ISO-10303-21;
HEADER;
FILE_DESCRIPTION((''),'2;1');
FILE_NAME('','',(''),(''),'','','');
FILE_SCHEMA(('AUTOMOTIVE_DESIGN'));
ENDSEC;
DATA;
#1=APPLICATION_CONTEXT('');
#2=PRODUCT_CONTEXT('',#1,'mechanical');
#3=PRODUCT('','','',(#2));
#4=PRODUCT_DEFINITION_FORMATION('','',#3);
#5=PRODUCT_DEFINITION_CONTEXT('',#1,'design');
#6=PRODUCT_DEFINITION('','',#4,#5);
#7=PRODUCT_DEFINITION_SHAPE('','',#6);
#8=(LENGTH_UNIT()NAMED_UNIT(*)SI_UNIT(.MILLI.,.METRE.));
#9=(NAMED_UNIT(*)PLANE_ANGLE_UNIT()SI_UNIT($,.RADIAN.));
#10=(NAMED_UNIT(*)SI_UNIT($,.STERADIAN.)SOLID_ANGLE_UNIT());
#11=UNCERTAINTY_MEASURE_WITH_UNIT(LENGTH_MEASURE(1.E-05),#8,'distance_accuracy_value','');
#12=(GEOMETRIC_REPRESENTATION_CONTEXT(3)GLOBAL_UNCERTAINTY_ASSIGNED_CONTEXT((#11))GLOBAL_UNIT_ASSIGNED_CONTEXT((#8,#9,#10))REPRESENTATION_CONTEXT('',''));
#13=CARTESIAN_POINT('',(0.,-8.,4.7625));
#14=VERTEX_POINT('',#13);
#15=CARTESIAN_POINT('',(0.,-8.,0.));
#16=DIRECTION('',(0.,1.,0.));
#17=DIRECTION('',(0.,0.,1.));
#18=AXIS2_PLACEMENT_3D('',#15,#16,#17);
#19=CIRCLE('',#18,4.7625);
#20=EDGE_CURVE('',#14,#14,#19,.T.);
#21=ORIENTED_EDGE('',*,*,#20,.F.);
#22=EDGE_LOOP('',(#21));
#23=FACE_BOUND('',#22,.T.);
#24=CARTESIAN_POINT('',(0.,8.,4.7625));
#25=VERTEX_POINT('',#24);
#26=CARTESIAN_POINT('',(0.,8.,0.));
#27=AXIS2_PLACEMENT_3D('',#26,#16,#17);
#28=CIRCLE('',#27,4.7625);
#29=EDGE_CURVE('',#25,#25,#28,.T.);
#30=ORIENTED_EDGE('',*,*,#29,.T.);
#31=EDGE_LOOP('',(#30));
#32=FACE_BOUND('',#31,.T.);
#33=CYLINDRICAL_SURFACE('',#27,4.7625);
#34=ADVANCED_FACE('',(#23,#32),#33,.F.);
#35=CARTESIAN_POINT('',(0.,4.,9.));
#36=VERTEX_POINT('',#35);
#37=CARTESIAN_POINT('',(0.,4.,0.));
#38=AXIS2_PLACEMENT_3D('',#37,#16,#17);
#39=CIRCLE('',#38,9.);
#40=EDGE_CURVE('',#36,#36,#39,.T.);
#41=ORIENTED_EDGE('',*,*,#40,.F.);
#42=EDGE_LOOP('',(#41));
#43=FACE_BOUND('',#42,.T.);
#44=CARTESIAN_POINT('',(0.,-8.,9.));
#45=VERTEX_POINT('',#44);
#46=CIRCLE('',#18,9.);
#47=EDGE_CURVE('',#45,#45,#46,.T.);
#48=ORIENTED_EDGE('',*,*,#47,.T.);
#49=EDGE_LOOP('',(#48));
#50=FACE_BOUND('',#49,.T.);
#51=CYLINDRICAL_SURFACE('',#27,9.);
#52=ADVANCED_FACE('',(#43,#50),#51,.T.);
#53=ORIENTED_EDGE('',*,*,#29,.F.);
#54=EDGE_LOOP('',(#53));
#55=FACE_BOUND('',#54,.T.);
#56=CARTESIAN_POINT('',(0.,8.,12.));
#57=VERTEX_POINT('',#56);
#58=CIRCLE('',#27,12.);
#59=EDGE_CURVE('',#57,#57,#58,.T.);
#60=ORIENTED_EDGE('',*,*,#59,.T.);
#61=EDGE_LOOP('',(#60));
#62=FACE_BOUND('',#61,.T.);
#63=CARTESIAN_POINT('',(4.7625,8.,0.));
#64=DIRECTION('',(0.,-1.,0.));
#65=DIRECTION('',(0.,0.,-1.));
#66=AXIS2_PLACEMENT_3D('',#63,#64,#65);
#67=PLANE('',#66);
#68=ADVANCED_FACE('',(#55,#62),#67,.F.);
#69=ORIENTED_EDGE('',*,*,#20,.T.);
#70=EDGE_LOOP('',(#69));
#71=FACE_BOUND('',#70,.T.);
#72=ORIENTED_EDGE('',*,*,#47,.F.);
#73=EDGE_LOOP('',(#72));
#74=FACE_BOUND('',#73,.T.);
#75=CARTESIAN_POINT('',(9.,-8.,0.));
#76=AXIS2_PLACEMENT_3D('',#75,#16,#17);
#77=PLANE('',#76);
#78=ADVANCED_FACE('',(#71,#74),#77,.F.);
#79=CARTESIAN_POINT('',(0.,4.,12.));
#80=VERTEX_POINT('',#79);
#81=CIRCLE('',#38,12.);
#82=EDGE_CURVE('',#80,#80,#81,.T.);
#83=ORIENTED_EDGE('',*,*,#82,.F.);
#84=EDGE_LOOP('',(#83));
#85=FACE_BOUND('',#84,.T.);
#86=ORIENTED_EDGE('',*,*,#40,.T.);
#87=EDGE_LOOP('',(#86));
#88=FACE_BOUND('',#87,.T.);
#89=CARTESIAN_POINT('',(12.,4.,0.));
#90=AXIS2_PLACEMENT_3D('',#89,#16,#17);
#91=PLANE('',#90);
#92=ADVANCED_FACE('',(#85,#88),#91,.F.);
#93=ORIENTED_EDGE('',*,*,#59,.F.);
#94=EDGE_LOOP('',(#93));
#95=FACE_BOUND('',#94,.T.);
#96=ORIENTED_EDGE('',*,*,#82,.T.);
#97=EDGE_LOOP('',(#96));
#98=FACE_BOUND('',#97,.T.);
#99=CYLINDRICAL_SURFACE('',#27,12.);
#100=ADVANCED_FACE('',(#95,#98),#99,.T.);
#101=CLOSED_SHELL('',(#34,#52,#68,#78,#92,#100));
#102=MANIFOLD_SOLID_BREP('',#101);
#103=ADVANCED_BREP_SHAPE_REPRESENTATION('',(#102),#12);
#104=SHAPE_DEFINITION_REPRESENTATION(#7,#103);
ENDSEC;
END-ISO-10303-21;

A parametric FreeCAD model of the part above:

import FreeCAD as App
import Part
import Sketcher
from FreeCAD import Vector
Q = App.Units.Quantity


def add_polygon(sketch, points):
    """Adds a closed chain of lines whose ends are joined by coincident constraints."""
    first, n = sketch.GeometryCount, len(points)
    for a, b in zip(points, points[1:] + points[:1]):
        sketch.addGeometry(Part.LineSegment(App.Vector(*a, 0), App.Vector(*b, 0)), False)
    for i in range(n):
        sketch.addConstraint(Sketcher.Constraint("Coincident", first + i, 2, first + (i + 1) % n, 1))

doc = App.newDocument("Part")
body = doc.addObject("PartDesign::Body", "Body")

# Sketch on XY plane
sketch1 = body.newObject("Sketcher::SketchObject", "Sketch")
sketch1.AttachmentSupport = (doc.getObject("XY_Plane"), [""])
sketch1.MapMode = "FlatFace"
add_polygon(sketch1, [(12, 8), (4.8, 8), (4.8, -8), (9, -8), (9, 4), (12, 4)])  # lines 0-5
sketch1.addConstraint([
    Sketcher.Constraint("Horizontal", 0),
    Sketcher.Constraint("Vertical", 1),
    Sketcher.Constraint("Horizontal", 2),
    Sketcher.Constraint("Vertical", 3),
    Sketcher.Constraint("Horizontal", 4),
    Sketcher.Constraint("Vertical", 5),
    Sketcher.Constraint("DistanceX", 4, 1, 4, 2, Q("3 mm")),
    Sketcher.Constraint("DistanceY", 1, 2, 1, 1, Q("16 mm")),
    Sketcher.Constraint("DistanceY", 3, 1, 3, 2, Q("12 mm")),
    Sketcher.Constraint("DistanceY", -1, 1, 0, 2, Q("8 mm")),
    Sketcher.Constraint("DistanceX", -1, 1, 2, 2, Q("9 mm")),
    Sketcher.Constraint("DistanceX", 0, 2, 0, 1, Q("7.2375 mm")),
])
revolution = body.newObject("PartDesign::Revolution", "Revolution")
revolution.Profile = sketch1
revolution.ReferenceAxis = (sketch1, ["V_Axis"])
revolution.Angle = 360

doc.recompute()
